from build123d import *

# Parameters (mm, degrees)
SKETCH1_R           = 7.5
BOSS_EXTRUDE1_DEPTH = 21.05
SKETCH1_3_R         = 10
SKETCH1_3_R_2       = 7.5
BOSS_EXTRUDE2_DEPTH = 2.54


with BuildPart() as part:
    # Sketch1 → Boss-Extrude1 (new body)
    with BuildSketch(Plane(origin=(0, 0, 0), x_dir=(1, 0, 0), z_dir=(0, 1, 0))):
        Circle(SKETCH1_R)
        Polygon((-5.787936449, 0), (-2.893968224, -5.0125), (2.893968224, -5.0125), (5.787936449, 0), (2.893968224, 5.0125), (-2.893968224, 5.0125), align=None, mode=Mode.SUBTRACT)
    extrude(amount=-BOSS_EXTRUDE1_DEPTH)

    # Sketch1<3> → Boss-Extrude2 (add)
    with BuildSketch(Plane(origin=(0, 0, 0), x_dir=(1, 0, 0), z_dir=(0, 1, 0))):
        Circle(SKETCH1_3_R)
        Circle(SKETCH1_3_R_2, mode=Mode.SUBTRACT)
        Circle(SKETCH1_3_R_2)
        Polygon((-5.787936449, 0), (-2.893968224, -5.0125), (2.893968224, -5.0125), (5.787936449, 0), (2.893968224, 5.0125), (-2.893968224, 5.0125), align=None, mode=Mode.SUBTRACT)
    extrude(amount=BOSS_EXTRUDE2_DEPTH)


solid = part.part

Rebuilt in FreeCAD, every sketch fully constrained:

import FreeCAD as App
import Part
import Sketcher
Q = App.Units.Quantity


def add_polygon(sketch, points):
    """Adds a closed chain of lines whose ends are joined by coincident constraints."""
    first, n = sketch.GeometryCount, len(points)
    for a, b in zip(points, points[1:] + points[:1]):
        sketch.addGeometry(Part.LineSegment(App.Vector(*a, 0), App.Vector(*b, 0)), False)
    for i in range(n):
        sketch.addConstraint(Sketcher.Constraint("Coincident", first + i, 2, first + (i + 1) % n, 1))

doc = App.newDocument("Part")
body = doc.addObject("PartDesign::Body", "Body")

# Sketch on XZ plane
sketch1 = doc.addObject("Sketcher::SketchObject", "Sketch")
body.addObject(sketch1)
sketch1.AttachmentSupport = (doc.XZ_Plane, [""])
sketch1.MapMode = "FlatFace"
sketch1.addGeometry(Part.Circle(App.Vector(0, 0, 0), App.Vector(0, 0, 1), 8), False)  # 0
add_polygon(sketch1, [(-3, 5), (-6, 0), (-3, -5), (3, -5), (6, 0), (3, 5)])  # lines 1-6
sketch1.addConstraint(Sketcher.Constraint("Horizontal", 3))
sketch1.addConstraint(Sketcher.Constraint("Horizontal", 6))
sketch1.addConstraint(Sketcher.Constraint("Coincident", 0, 3, -1, 1))
sketch1.addConstraint(Sketcher.Constraint("Symmetric", 1, 2, 4, 2, -1, 1))
sketch1.addConstraint(Sketcher.Constraint("Symmetric", 2, 2, 5, 2, -1, 1))
sketch1.addConstraint(Sketcher.Constraint("PointOnObject", 1, 2, -1))
sketch1.addConstraint(Sketcher.Constraint("Parallel", 1, 4))
sketch1.addConstraint(Sketcher.Constraint("Vertical", 3, 2, 5, 2))
sketch1.addConstraint(Sketcher.Constraint("Diameter", 0, Q("15 mm")))
sketch1.addConstraint(Sketcher.Constraint("Angle", 1, Q("-120 deg")))
sketch1.addConstraint(Sketcher.Constraint("DistanceY", 3, 2, 5, 2, Q("10.025 mm")))
sketch1.addConstraint(Sketcher.Constraint("DistanceX", 3, 1, 3, 2, Q("5.787936 mm")))
pad1 = doc.addObject("PartDesign::Pad", "Pad")
body.addObject(pad1)
pad1.Profile = sketch1
pad1.Length = 21.05

# Sketch on XZ plane
sketch2 = doc.addObject("Sketcher::SketchObject", "Sketch001")
body.addObject(sketch2)
sketch2.AttachmentSupport = (doc.XZ_Plane, [""])
sketch2.MapMode = "FlatFace"
sketch2.addGeometry(Part.Circle(App.Vector(0, 0, 0), App.Vector(0, 0, 1), 10), False)  # 0
add_polygon(sketch2, [(-3, 5), (-6, 0), (-3, -5), (3, -5), (6, 0), (3, 5)])  # lines 1-6
sketch2.addConstraint(Sketcher.Constraint("Horizontal", 3))
sketch2.addConstraint(Sketcher.Constraint("Horizontal", 6))
sketch2.addConstraint(Sketcher.Constraint("Coincident", 0, 3, -1, 1))
sketch2.addConstraint(Sketcher.Constraint("Symmetric", 1, 2, 4, 2, -1, 1))
sketch2.addConstraint(Sketcher.Constraint("Symmetric", 2, 2, 5, 2, -1, 1))
sketch2.addConstraint(Sketcher.Constraint("PointOnObject", 1, 2, -1))
sketch2.addConstraint(Sketcher.Constraint("Parallel", 1, 4))
sketch2.addConstraint(Sketcher.Constraint("Vertical", 3, 2, 5, 2))
sketch2.addConstraint(Sketcher.Constraint("Diameter", 0, Q("20 mm")))
sketch2.addConstraint(Sketcher.Constraint("Angle", 1, Q("-120 deg")))
sketch2.addConstraint(Sketcher.Constraint("DistanceY", 3, 2, 5, 2, Q("10.025 mm")))
sketch2.addConstraint(Sketcher.Constraint("DistanceX", 3, 1, 3, 2, Q("5.787936 mm")))
pad2 = doc.addObject("PartDesign::Pad", "Pad001")
body.addObject(pad2)
pad2.Profile = sketch2
pad2.Length = 2.54
pad2.Reversed = True

doc.recompute()
